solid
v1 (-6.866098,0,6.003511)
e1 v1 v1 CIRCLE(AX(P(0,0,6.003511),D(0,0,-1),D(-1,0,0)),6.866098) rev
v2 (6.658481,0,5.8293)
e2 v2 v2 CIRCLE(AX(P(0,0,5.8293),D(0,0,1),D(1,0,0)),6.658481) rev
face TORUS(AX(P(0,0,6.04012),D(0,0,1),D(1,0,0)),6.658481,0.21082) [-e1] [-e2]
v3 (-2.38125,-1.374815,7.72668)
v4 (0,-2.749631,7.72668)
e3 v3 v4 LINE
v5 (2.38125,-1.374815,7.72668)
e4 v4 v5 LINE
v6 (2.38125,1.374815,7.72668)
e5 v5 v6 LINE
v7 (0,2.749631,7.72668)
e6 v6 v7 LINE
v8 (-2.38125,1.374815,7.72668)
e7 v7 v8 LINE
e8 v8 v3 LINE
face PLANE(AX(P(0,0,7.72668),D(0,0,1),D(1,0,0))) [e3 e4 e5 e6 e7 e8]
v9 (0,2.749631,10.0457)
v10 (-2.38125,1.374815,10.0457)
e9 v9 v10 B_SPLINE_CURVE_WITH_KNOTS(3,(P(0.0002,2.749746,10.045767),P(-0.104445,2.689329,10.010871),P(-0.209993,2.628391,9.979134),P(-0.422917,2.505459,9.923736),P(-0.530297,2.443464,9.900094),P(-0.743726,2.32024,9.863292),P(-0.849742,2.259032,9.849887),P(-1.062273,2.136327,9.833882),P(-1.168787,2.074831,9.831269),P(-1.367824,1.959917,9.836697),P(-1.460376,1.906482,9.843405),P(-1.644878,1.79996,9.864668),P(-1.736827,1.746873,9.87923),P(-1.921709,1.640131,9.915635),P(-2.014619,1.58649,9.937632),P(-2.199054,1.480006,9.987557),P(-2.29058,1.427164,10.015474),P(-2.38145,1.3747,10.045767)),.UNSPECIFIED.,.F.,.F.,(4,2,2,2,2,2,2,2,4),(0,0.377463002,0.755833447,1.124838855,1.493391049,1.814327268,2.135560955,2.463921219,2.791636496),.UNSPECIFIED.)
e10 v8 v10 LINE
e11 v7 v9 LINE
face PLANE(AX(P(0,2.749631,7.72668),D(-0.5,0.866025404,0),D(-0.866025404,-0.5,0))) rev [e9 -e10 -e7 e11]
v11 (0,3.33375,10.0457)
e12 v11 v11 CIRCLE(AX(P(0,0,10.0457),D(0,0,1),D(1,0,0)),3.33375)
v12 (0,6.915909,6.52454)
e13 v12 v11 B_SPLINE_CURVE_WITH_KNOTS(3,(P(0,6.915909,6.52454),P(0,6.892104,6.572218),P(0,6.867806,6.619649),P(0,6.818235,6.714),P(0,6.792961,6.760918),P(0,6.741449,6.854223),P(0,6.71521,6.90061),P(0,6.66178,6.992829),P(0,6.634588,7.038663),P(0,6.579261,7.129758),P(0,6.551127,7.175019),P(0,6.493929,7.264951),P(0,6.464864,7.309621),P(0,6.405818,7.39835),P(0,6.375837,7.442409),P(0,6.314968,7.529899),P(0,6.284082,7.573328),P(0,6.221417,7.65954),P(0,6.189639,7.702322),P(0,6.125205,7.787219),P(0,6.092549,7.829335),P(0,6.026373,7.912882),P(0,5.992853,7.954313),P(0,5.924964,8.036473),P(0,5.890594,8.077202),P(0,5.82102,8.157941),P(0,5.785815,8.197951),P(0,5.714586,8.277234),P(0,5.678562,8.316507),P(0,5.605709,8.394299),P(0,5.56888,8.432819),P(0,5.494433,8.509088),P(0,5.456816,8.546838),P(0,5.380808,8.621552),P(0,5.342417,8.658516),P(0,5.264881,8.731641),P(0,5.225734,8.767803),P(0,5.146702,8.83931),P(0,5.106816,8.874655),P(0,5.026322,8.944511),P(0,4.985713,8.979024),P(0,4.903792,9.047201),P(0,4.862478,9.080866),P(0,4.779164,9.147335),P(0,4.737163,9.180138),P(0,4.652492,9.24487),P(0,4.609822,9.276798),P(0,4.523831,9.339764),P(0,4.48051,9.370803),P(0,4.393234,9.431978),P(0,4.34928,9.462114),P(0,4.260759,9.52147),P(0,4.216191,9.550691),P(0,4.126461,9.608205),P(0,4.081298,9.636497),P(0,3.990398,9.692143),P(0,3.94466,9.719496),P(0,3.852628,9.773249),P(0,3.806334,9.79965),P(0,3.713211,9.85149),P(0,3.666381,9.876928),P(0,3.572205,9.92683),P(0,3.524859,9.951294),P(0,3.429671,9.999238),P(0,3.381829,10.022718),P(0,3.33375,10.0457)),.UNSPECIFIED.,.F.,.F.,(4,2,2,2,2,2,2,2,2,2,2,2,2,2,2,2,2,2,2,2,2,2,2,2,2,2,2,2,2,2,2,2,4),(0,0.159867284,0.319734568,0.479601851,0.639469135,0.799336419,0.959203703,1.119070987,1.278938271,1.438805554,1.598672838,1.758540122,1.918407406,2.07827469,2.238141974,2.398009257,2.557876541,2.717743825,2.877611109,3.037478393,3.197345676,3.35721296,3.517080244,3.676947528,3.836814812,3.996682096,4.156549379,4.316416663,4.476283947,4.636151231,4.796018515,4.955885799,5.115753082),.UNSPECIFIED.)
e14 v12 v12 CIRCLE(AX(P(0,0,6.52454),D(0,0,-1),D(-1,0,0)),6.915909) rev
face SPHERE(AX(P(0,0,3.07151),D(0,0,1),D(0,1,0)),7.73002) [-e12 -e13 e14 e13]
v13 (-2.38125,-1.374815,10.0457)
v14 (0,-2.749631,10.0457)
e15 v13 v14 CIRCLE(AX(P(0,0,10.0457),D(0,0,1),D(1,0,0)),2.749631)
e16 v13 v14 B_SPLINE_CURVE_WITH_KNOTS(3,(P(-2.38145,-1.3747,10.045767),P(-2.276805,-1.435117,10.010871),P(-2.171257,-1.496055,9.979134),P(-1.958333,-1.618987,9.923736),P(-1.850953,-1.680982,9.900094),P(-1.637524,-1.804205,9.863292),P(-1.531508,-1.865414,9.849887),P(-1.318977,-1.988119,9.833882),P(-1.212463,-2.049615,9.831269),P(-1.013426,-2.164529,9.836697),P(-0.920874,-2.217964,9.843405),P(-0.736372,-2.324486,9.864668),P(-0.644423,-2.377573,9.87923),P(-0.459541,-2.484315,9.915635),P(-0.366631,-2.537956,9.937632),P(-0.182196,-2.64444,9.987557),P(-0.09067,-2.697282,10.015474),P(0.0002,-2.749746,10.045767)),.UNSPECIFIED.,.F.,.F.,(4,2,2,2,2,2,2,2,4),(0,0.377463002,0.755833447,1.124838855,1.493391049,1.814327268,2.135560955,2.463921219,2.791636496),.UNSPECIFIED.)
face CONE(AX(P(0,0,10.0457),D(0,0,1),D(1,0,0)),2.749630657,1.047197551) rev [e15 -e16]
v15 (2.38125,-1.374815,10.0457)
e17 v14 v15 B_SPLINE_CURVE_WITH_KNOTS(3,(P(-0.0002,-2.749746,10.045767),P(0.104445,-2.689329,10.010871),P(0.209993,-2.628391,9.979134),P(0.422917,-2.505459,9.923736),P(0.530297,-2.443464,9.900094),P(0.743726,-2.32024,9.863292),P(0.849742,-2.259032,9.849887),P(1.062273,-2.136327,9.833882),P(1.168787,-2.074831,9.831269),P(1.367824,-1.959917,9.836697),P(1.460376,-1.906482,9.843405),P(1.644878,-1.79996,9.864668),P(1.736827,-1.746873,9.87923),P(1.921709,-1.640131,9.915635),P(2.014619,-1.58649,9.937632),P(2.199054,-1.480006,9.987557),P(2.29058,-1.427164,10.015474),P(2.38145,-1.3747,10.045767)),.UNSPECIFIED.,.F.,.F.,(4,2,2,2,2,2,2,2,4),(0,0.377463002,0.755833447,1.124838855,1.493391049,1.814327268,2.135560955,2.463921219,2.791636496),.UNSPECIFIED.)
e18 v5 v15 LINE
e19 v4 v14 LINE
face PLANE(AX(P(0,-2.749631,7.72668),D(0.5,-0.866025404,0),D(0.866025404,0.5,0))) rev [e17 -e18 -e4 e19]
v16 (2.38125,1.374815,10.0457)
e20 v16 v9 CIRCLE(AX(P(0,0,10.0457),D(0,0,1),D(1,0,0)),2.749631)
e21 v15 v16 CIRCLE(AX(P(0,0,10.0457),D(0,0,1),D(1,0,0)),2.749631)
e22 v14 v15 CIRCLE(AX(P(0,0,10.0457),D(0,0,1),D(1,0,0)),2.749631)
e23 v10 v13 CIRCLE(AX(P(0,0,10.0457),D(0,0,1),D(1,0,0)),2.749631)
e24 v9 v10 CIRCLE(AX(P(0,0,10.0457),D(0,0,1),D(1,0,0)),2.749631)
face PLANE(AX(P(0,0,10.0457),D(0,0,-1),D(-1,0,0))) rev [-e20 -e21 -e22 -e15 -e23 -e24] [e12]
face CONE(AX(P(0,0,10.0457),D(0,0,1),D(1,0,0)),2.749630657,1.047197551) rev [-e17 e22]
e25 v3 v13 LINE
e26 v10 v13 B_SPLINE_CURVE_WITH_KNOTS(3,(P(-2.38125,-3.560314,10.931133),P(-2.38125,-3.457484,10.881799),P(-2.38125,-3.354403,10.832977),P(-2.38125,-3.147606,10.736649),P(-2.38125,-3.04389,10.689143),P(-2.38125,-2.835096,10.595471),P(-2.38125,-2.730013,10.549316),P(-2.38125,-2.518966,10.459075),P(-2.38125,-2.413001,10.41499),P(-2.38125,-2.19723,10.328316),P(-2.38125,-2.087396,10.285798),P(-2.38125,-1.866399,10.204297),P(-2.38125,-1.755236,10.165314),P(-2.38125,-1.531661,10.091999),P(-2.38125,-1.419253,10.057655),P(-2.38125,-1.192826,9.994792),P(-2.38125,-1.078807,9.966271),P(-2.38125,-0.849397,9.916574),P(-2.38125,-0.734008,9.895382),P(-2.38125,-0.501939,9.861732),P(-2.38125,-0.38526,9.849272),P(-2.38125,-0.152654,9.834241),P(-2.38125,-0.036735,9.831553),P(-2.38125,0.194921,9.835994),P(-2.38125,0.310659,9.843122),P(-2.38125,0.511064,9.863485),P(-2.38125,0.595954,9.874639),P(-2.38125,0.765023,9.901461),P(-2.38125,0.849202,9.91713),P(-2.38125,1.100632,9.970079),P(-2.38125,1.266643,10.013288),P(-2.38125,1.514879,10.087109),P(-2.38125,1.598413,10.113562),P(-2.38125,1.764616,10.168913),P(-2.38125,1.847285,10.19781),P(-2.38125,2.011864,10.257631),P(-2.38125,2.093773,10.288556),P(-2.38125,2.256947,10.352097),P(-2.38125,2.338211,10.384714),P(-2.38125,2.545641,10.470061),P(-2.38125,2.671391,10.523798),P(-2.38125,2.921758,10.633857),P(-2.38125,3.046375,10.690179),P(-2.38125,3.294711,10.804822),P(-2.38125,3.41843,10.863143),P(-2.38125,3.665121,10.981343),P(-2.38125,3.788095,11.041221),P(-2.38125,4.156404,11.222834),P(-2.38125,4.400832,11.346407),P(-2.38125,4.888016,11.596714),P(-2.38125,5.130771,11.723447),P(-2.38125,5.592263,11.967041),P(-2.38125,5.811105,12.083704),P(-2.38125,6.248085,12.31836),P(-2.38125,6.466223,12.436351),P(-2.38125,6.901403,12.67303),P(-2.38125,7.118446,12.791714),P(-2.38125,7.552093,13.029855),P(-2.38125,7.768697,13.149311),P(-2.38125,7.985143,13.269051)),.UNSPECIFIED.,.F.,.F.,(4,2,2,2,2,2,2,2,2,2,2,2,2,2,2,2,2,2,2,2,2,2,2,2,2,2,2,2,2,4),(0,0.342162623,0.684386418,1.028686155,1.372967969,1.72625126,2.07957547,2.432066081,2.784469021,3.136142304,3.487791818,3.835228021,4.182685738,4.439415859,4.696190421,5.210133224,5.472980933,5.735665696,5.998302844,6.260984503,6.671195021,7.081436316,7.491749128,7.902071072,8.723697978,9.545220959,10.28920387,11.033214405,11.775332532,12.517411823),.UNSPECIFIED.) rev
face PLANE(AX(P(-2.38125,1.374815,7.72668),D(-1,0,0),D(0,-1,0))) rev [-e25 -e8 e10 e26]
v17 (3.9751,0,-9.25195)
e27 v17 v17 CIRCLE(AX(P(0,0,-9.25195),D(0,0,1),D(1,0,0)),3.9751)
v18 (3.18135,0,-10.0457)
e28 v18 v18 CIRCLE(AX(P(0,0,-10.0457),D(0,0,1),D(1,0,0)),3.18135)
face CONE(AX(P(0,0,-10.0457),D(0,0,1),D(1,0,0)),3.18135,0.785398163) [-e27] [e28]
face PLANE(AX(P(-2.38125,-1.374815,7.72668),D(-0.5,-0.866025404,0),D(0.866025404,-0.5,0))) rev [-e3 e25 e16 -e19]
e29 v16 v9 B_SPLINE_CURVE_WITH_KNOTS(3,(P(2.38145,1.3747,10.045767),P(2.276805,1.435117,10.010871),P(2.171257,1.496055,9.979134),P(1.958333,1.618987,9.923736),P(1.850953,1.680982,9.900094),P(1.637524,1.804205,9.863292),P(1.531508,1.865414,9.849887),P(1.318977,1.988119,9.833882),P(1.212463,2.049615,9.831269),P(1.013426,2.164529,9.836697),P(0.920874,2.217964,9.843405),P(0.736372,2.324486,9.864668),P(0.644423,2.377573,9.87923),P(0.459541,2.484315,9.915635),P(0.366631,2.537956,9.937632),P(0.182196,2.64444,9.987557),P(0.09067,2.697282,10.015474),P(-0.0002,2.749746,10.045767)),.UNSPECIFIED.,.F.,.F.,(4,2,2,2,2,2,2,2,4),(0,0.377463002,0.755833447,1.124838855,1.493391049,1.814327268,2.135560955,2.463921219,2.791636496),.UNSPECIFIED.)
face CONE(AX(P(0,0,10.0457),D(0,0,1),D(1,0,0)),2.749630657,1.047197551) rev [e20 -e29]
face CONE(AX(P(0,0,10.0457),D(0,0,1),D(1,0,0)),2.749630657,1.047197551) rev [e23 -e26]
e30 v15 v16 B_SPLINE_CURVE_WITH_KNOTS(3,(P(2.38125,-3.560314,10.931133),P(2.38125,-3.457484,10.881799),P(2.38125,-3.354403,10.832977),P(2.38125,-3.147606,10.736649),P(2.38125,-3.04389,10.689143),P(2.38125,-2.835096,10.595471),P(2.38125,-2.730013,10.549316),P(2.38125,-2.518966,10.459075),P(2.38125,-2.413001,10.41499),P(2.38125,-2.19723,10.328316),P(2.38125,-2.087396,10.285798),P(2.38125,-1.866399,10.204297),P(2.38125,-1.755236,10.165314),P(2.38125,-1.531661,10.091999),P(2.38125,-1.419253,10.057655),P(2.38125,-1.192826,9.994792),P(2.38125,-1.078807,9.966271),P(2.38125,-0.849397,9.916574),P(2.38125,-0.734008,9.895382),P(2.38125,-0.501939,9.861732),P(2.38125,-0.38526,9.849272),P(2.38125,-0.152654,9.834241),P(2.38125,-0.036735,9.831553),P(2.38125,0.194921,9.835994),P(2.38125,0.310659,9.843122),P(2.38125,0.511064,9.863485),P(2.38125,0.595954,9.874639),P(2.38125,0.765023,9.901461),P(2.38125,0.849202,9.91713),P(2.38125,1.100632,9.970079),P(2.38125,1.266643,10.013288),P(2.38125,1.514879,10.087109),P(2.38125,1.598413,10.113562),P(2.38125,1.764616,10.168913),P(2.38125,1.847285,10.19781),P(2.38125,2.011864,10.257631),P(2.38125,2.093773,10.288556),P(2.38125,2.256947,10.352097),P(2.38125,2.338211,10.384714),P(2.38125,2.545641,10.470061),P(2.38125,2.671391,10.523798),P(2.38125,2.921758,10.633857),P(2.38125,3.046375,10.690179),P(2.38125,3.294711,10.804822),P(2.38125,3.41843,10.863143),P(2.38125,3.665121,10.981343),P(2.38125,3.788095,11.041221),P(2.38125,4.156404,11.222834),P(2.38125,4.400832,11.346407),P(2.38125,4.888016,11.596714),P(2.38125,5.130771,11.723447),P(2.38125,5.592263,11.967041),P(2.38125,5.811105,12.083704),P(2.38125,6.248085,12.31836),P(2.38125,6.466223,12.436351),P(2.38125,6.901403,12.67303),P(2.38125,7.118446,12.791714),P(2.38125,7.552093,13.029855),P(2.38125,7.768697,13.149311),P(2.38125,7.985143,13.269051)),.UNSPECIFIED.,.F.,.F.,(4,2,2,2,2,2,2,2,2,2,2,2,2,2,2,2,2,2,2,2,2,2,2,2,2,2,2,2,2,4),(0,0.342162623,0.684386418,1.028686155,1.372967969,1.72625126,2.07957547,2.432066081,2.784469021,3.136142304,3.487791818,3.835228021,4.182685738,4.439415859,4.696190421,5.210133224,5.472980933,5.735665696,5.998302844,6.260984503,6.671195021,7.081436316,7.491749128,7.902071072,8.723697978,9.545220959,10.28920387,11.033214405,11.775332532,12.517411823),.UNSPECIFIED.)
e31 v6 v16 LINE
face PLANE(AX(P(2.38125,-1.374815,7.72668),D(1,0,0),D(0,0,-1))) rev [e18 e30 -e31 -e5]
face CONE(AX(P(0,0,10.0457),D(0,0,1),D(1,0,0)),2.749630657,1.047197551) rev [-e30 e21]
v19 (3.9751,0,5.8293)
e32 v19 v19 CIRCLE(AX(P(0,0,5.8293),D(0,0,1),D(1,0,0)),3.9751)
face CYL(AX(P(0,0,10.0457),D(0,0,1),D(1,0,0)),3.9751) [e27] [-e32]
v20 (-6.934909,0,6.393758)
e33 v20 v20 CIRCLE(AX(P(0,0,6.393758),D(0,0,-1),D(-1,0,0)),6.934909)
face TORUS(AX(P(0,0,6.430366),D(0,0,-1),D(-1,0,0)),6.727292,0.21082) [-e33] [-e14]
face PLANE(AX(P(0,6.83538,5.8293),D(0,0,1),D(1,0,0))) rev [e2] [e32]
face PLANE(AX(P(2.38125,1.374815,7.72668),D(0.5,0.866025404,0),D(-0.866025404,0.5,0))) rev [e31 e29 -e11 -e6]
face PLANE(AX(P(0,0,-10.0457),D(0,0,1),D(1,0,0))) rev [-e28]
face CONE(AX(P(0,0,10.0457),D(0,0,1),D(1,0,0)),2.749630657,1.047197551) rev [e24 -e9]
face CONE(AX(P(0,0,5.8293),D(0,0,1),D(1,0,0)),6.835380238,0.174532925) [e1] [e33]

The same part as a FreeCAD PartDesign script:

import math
import FreeCAD as App
import Part
import Sketcher
Q = App.Units.Quantity


def edges_at(feature, points):
    """Names of the edges that pass closest to the given points."""
    edges = feature.Shape.Edges
    near = lambda p: min(range(len(edges)), key=lambda i: edges[i].distToShape(Part.Vertex(*p))[0])
    return sorted({f"Edge{near(p) + 1}" for p in points})

doc = App.newDocument("Part")
params = doc.addObject("Spreadsheet::Sheet", "Params")
for row, (alias, value) in enumerate([
    ("sketch1_height", "0.791 in"),
    ("sketch1_height2", "0.59375 in"),
    ("revolution_angle", "360 deg"),
    ("pocket1_length", "0.0913 in"),
    ("sketch3_height", "0.0625 in"),
    ("groove_angle", "360 deg"),
    ("fillet_radius", "0.0083 in"),
], start=1):
    params.set(f"A{row}", alias)
    params.set(f"B{row}", "=" + value)
    params.setAlias(f"B{row}", alias)

body = doc.addObject("PartDesign::Body", "Body")

sketch1 = doc.addObject("Sketcher::SketchObject", "Sketch")
body.addObject(sketch1)
sketch1.AttachmentSupport = (doc.YZ_Plane, [""])
sketch1.MapMode = "FlatFace"
sketch1.addGeometry([
    Part.LineSegment(App.Vector(3.3, 10, 0), App.Vector(0, 10, 0)),
    Part.LineSegment(App.Vector(0, 10, 0), App.Vector(0, -10, 0)),
    Part.LineSegment(App.Vector(0, -10, 0), App.Vector(3.2, -10, 0)),
    Part.LineSegment(App.Vector(3.2, -10, 0), App.Vector(4, -9.3, 0)),
    Part.LineSegment(App.Vector(4, -9.3, 0), App.Vector(4, 5.8, 0)),
    Part.LineSegment(App.Vector(4, 5.8, 0), App.Vector(6.8, 5.8, 0)),
    Part.LineSegment(App.Vector(6.8, 5.8, 0), App.Vector(6.9, 6.5, 0)),
    Part.ArcOfCircle(Part.Circle(App.Vector(0, 3.1, 0), App.Vector(0, 0, 1), 7.7), math.radians(26), math.radians(64)),
], False)
sketch1.addConstraint([
    Sketcher.Constraint("Coincident", 0, 2, 1, 1),
    Sketcher.Constraint("Coincident", 1, 2, 2, 1),
    Sketcher.Constraint("Coincident", 2, 2, 3, 1),
    Sketcher.Constraint("Coincident", 3, 2, 4, 1),
    Sketcher.Constraint("Coincident", 4, 2, 5, 1),
    Sketcher.Constraint("Coincident", 5, 2, 6, 1),
    Sketcher.Constraint("Coincident", 6, 2, 7, 1),
    Sketcher.Constraint("Coincident", 7, 2, 0, 1),
    Sketcher.Constraint("Horizontal", 0),
    Sketcher.Constraint("Vertical", 1),
    Sketcher.Constraint("Horizontal", 2),
    Sketcher.Constraint("Vertical", 4),
    Sketcher.Constraint("Horizontal", 5),
    Sketcher.Constraint("Symmetric", 0, 2, 1, 2, -1, 1),
    Sketcher.Constraint("PointOnObject", 7, 3, -2),
    Sketcher.Constraint("Angle", 3, Q("45 deg")),
    Sketcher.Constraint("Angle", 6, Q("80 deg")),
    Sketcher.Constraint("DistanceY", 1, 2, 1, 1, Q("0.791 in")),
    Sketcher.Constraint("DistanceY", 4, 1, 4, 2, Q("0.59375 in")),
    Sketcher.Constraint("Radius", 7, Q("7.73002 mm")),
    Sketcher.Constraint("DistanceX", 2, 2, 3, 2, Q("0.03125 in")),
    Sketcher.Constraint("DistanceX", 4, 2, 6, 2, Q("0.117 in")),
    Sketcher.Constraint("DistanceX", -1, 1, 3, 2, Q("0.1565 in")),
    Sketcher.Constraint("DistanceY", -1, 1, 6, 2, Q("0.2544 in")),
])
sketch1.setExpression("Constraints[17]", "Params.sketch1_height")
sketch1.setExpression("Constraints[18]", "Params.sketch1_height2")
revolution = doc.addObject("PartDesign::Revolution", "Revolution")
body.addObject(revolution)
revolution.Profile = sketch1
revolution.ReferenceAxis = (sketch1, ["V_Axis"])
revolution.setExpression("Angle", "Params.revolution_angle")

sketch2 = doc.addObject("Sketcher::SketchObject", "Sketch001")
body.addObject(sketch2)
sketch2.AttachmentSupport = (doc.XY_Plane, [""])
sketch2.MapMode = "FlatFace"
sketch2.AttachmentOffset = App.Placement(App.Vector(0, 0, 0.3955 * 25.4), App.Rotation())
sketch2.addGeometry([
    Part.LineSegment(App.Vector(-2.4, -1.4, 0), App.Vector(0, -2.7, 0)),
    Part.LineSegment(App.Vector(0, -2.7, 0), App.Vector(2.4, -1.4, 0)),
    Part.LineSegment(App.Vector(2.4, -1.4, 0), App.Vector(2.4, 1.4, 0)),
    Part.LineSegment(App.Vector(2.4, 1.4, 0), App.Vector(0, 2.7, 0)),
    Part.LineSegment(App.Vector(0, 2.7, 0), App.Vector(-2.4, 1.4, 0)),
    Part.LineSegment(App.Vector(-2.4, 1.4, 0), App.Vector(-2.4, -1.4, 0)),
], False)
sketch2.addConstraint([
    Sketcher.Constraint("Coincident", 0, 2, 1, 1),
    Sketcher.Constraint("Coincident", 1, 2, 2, 1),
    Sketcher.Constraint("Coincident", 2, 2, 3, 1),
    Sketcher.Constraint("Coincident", 3, 2, 4, 1),
    Sketcher.Constraint("Coincident", 4, 2, 5, 1),
    Sketcher.Constraint("Coincident", 5, 2, 0, 1),
    Sketcher.Constraint("Vertical", 2),
    Sketcher.Constraint("Vertical", 5),
    Sketcher.Constraint("Symmetric", 0, 2, 3, 2, -1, 1),
    Sketcher.Constraint("Symmetric", 1, 2, 4, 2, -1, 1),
    Sketcher.Constraint("PointOnObject", 0, 2, -2),
    Sketcher.Constraint("Parallel", 0, 3),
    Sketcher.Constraint("Horizontal", 2, 2, 4, 2),
    Sketcher.Constraint("Angle", 0, Q("-30 deg")),
    Sketcher.Constraint("DistanceX", -1, 1, 1, 2, Q("0.09375 in")),
    Sketcher.Constraint("DistanceY", 2, 1, 2, 2, Q("2.749631 mm")),
])
pocket1 = doc.addObject("PartDesign::Pocket", "Pocket")
body.addObject(pocket1)
pocket1.Profile = sketch2
pocket1.setExpression("Length", "Params.pocket1_length")

sketch3 = doc.addObject("Sketcher::SketchObject", "Sketch002")
body.addObject(sketch3)
sketch3.AttachmentSupport = (doc.YZ_Plane, [""])
sketch3.MapMode = "FlatFace"
sketch3.addGeometry([
    Part.LineSegment(App.Vector(0, 10, 0), App.Vector(-2.7, 10, 0)),
    Part.LineSegment(App.Vector(-2.7, 10, 0), App.Vector(0, 8.5, 0)),
    Part.LineSegment(App.Vector(0, 8.5, 0), App.Vector(0, 10, 0)),
], False)
sketch3.addConstraint([
    Sketcher.Constraint("Coincident", 0, 2, 1, 1),
    Sketcher.Constraint("Coincident", 1, 2, 2, 1),
    Sketcher.Constraint("Coincident", 2, 2, 0, 1),
    Sketcher.Constraint("Horizontal", 0),
    Sketcher.Constraint("Vertical", 2),
    Sketcher.Constraint("PointOnObject", 1, 2, -2),
    Sketcher.Constraint("Angle", 1, Q("-30 deg")),
    Sketcher.Constraint("DistanceY", 2, 1, 2, 2, Q("0.0625 in")),
    Sketcher.Constraint("DistanceY", -1, 1, 1, 2, Q("0.333 in")),
])
sketch3.setExpression("Constraints[7]", "Params.sketch3_height")
groove = doc.addObject("PartDesign::Groove", "Groove")
body.addObject(groove)
groove.Profile = sketch3
groove.ReferenceAxis = (sketch3, ["V_Axis"])
groove.setExpression("Angle", "Params.groove_angle")
doc.recompute()

fillet = doc.addObject("PartDesign::Fillet", "Fillet")
body.addObject(fillet)
fillet.Base = (groove, edges_at(groove, [(-6.835, 0, 5.829), (-6.947, 0, 6.462)]))
fillet.setExpression("Radius", "Params.fillet_radius")

doc.recompute()
